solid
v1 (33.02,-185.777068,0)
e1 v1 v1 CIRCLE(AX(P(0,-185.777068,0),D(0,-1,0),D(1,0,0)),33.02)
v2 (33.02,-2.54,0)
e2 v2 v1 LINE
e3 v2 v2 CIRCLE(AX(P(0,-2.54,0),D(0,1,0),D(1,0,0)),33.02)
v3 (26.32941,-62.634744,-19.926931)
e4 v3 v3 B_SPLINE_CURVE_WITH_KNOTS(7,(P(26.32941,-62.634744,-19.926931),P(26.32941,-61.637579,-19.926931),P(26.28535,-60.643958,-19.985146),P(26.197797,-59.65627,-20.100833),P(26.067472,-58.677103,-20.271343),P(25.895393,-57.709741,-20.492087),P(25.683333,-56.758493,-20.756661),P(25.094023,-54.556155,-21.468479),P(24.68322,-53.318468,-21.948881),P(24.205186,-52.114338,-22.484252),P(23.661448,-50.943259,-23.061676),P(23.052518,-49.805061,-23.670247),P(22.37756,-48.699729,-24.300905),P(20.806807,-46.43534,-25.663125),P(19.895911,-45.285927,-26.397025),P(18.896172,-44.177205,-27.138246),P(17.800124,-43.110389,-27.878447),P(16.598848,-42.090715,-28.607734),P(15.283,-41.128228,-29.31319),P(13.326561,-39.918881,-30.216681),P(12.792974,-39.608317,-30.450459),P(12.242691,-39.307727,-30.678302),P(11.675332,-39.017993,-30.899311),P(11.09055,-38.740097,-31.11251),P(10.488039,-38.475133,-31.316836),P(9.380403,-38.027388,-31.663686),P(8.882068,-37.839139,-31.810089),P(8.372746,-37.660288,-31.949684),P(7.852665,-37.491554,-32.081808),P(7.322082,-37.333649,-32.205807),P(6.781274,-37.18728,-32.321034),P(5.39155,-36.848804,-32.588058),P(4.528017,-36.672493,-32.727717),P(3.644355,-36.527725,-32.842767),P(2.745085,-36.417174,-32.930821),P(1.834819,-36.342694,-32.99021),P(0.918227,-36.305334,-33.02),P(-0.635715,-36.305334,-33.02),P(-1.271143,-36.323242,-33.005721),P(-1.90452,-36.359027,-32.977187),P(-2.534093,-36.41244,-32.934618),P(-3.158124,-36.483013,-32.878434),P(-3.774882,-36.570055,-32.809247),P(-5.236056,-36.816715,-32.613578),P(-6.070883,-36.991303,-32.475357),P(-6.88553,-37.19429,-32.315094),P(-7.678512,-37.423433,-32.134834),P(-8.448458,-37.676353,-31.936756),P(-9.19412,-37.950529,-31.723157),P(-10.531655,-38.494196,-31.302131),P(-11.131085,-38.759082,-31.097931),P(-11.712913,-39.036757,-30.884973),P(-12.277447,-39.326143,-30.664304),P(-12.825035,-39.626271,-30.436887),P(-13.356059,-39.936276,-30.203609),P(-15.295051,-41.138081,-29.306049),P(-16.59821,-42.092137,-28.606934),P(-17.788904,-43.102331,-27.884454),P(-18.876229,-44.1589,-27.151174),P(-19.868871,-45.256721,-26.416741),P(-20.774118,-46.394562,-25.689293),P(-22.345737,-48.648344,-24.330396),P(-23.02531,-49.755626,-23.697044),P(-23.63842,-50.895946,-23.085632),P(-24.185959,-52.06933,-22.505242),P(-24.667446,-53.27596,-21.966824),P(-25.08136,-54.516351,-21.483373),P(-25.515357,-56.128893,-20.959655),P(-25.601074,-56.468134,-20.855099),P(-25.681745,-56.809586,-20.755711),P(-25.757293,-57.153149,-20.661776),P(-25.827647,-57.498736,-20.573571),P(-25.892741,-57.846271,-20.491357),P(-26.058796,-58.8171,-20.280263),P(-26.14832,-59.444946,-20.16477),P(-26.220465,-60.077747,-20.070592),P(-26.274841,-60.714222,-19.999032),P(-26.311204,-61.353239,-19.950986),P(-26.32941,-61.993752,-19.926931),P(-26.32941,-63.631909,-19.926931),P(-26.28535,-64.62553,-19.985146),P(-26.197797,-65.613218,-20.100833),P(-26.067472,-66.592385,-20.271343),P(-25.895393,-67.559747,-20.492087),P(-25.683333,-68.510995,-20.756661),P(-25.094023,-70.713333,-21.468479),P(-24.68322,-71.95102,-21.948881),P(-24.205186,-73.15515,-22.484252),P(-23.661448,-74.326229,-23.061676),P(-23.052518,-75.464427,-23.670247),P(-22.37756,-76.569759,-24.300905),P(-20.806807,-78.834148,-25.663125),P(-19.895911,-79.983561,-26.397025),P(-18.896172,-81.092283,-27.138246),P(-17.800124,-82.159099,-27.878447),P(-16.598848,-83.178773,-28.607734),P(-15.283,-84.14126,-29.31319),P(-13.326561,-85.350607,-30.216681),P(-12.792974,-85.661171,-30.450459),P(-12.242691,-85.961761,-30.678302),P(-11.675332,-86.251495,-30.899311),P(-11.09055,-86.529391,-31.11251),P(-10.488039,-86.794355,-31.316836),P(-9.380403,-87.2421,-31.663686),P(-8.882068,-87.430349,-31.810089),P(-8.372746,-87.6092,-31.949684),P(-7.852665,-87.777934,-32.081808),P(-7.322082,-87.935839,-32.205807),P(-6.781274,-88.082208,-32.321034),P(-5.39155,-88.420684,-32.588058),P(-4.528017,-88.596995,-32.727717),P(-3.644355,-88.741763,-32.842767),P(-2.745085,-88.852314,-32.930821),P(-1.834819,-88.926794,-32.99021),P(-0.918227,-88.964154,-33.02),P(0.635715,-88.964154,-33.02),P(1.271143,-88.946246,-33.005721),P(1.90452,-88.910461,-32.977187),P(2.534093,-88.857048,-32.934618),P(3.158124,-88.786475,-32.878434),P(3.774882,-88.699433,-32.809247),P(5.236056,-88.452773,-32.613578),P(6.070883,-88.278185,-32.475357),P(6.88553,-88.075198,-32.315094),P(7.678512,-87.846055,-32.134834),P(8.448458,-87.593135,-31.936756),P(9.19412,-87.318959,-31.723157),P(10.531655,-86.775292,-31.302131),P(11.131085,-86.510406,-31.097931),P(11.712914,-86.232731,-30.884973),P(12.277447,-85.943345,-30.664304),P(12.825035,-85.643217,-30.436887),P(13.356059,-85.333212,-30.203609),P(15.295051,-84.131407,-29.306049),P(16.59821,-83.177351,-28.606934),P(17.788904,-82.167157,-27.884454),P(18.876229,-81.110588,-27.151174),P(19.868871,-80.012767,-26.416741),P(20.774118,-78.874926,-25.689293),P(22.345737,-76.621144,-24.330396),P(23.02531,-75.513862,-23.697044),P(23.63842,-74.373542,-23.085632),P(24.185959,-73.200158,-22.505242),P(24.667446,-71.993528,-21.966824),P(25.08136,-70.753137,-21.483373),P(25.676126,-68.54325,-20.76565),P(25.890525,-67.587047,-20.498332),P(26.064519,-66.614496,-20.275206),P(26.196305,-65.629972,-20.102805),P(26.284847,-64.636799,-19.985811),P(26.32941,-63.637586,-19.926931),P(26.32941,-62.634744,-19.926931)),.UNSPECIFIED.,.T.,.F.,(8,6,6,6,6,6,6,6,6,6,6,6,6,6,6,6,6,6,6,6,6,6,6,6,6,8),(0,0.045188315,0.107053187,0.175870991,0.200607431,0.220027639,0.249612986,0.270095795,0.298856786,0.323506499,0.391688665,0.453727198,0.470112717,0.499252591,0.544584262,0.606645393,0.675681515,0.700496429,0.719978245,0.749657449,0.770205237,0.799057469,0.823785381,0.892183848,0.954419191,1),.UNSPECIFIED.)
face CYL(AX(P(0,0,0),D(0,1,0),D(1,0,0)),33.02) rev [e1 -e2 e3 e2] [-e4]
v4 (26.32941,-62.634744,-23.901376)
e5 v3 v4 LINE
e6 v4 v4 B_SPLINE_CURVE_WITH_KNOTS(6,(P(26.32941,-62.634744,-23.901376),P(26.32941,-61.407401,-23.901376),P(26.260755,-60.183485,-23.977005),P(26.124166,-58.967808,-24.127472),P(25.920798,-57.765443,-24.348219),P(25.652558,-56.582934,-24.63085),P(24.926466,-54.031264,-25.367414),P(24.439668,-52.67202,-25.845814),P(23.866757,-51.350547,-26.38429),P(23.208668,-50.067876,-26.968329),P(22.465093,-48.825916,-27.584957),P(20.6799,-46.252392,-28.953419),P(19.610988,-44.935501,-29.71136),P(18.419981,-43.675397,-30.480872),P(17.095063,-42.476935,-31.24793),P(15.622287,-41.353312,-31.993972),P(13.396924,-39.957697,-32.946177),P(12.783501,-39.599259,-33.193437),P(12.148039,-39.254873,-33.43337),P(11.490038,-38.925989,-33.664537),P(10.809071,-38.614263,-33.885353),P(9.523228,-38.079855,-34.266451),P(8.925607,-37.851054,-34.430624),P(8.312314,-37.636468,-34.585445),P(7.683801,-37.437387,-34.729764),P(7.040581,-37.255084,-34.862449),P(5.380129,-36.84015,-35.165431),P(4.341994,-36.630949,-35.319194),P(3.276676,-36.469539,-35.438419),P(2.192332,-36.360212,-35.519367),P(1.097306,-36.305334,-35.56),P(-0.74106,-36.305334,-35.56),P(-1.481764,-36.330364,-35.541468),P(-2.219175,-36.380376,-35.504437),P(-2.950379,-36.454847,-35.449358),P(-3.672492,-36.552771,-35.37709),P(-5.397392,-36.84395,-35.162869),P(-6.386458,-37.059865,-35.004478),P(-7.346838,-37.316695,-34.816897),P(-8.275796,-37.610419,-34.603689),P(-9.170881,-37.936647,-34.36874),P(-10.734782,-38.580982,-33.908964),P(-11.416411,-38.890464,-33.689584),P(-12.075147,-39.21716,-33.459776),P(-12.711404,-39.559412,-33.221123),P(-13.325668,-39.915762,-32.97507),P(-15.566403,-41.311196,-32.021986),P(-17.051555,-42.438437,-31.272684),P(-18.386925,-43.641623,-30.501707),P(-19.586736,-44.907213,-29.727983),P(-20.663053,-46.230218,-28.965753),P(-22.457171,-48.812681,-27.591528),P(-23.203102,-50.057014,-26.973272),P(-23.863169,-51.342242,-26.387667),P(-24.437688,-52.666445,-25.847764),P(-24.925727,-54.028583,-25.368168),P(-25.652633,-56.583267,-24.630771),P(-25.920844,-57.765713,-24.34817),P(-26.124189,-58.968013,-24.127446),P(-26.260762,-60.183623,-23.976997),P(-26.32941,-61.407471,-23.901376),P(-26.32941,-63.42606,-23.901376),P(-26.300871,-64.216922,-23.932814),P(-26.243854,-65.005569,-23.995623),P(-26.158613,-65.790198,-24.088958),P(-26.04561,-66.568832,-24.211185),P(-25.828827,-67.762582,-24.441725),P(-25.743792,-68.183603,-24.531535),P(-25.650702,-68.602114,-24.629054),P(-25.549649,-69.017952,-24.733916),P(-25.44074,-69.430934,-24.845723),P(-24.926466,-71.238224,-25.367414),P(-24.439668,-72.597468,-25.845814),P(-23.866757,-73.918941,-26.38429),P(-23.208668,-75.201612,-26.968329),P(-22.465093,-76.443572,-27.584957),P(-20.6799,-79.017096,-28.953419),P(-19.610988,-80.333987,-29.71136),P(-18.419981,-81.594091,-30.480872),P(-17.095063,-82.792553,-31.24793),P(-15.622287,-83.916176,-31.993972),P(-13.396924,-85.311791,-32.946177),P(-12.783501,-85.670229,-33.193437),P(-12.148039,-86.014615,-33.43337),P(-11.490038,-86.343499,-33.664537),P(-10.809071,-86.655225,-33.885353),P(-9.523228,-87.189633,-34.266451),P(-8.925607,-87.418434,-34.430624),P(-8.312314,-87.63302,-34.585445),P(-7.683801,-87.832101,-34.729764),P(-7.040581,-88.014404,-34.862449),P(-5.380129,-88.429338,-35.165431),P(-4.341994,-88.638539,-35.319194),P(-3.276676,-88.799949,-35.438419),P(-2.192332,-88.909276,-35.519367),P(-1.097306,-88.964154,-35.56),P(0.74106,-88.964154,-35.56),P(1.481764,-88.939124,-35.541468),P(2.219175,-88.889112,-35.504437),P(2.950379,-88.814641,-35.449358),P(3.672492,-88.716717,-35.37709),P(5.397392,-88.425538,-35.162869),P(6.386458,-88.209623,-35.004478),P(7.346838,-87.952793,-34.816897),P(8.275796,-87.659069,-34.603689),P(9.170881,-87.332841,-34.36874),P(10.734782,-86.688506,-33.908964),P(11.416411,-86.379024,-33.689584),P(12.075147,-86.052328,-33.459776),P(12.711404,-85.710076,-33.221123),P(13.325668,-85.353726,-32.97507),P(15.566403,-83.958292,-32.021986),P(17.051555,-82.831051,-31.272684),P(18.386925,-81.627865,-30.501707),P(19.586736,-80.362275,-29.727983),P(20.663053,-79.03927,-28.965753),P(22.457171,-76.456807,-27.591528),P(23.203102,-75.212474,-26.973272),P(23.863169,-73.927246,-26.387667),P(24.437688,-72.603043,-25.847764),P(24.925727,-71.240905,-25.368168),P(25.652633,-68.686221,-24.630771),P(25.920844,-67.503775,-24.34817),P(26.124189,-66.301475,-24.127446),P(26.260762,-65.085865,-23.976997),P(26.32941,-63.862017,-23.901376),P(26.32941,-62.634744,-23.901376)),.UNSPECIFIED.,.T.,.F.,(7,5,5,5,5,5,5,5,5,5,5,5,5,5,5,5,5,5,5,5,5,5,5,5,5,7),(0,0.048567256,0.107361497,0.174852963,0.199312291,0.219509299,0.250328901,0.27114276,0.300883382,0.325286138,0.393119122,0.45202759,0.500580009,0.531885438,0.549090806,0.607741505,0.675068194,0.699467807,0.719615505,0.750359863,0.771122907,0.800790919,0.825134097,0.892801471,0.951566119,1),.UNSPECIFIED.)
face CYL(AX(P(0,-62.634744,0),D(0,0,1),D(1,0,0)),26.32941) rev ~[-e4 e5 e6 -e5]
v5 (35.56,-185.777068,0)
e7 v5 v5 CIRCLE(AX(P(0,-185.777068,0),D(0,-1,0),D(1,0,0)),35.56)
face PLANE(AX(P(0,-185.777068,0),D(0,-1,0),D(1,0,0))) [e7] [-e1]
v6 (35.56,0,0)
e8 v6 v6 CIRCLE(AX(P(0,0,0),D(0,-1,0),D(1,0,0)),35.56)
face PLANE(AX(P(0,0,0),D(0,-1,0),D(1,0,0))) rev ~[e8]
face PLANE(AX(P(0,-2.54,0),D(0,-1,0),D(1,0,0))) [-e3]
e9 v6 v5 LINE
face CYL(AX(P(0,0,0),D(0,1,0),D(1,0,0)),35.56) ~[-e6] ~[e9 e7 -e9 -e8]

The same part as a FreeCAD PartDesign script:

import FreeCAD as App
import Part
import Sketcher

V = App.Vector
Q = App.Units.Quantity


def faces_at(feature, points):
    """Names of the faces that lie closest to the given points."""
    faces = feature.Shape.Faces
    near = lambda p: min(range(len(faces)), key=lambda i: faces[i].distToShape(Part.Vertex(*p))[0])
    return sorted({f"Face{near(p) + 1}" for p in points})

doc = App.newDocument("Part")
body = doc.addObject("PartDesign::Body", "Body")

# Sketch on XZ plane
sketch1 = body.newObject("Sketcher::SketchObject", "Sketch")
sketch1.AttachmentSupport = (doc.getObject("XZ_Plane"), [""])
sketch1.MapMode = "FlatFace"
sketch1.addGeometry(Part.Circle(V(0, 0, 0), V(0, 0, 1), 36), False)
sketch1.addConstraint([
    Sketcher.Constraint("Coincident", 0, 3, -1, 1),
    Sketcher.Constraint("Diameter", 0, Q("2.8 in")),
])
pad1 = body.newObject("PartDesign::Pad", "Pad")
pad1.Profile = sketch1
pad1.Length = 185.777068
doc.recompute()

thickness = body.newObject("PartDesign::Thickness", "Thickness")
thickness.Base = (pad1, faces_at(pad1, [(0, -185.777, 0)]))
thickness.Value = Q("0.1 in")
thickness.Reversed = True
thickness.Join = "Arc"

# Sketch on XY plane
sketch2 = body.newObject("Sketcher::SketchObject", "Sketch001")
sketch2.AttachmentSupport = (doc.getObject("XY_Plane"), [""])
sketch2.MapMode = "FlatFace"
sketch2.addGeometry(Part.Circle(V(0, -63, 0), V(0, 0, 1), 26), False)
sketch2.addConstraint([
    Sketcher.Constraint("PointOnObject", 0, 3, -2),
    Sketcher.Constraint("Diameter", 0, 52.65882),
    Sketcher.Constraint("DistanceY", 0, 3, -1, 1, 62.634744),
])
pocket1 = body.newObject("PartDesign::Pocket", "Pocket")
pocket1.Profile = sketch2
pocket1.Length = 101.879455

doc.recompute()
